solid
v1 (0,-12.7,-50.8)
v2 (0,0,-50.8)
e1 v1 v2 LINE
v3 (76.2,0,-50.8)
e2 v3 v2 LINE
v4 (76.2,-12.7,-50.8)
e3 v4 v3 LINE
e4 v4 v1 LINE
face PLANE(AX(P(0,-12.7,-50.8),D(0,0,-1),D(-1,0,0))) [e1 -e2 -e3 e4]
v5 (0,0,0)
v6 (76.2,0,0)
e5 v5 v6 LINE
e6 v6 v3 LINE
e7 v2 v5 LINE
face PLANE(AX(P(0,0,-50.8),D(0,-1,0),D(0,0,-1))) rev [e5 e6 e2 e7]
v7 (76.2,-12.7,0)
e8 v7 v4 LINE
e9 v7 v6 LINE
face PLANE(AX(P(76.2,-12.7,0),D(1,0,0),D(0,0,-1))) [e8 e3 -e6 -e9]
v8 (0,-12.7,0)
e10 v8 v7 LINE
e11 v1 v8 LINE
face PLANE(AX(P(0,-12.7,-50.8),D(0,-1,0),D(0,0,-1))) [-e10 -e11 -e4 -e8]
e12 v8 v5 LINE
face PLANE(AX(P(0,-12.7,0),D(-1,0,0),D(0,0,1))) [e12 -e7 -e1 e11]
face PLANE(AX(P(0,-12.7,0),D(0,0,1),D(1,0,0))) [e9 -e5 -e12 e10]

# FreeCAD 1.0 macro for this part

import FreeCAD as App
import Part
import Sketcher

V = App.Vector
Q = App.Units.Quantity


def add_polygon(sketch, points):
    """Adds a closed chain of lines whose ends are joined by coincident constraints."""
    first, n = sketch.GeometryCount, len(points)
    for a, b in zip(points, points[1:] + points[:1]):
        sketch.addGeometry(Part.LineSegment(App.Vector(*a, 0), App.Vector(*b, 0)), False)
    for i in range(n):
        sketch.addConstraint(Sketcher.Constraint("Coincident", first + i, 2, first + (i + 1) % n, 1))

doc = App.newDocument("Part")
body = doc.addObject("PartDesign::Body", "Body")

sketch1 = body.newObject("Sketcher::SketchObject", "Sketch")
sketch1.AttachmentSupport = (doc.getObject("XZ_Plane"), [""])
sketch1.MapMode = "FlatFace"
add_polygon(sketch1, [(0, -51), (0, 0), (76, 0), (76, -51)])
sketch1.addConstraint([
    Sketcher.Constraint("Vertical", 0),
    Sketcher.Constraint("Horizontal", 1),
    Sketcher.Constraint("Vertical", 2),
    Sketcher.Constraint("Horizontal", 3),
    Sketcher.Constraint("Coincident", 0, 2, -1, 1),
    Sketcher.Constraint("DistanceX", 1, 1, 1, 2, Q("3 in")),
    Sketcher.Constraint("DistanceY", 0, 1, 0, 2, Q("2 in")),
])
pad1 = body.newObject("PartDesign::Pad", "Pad")
pad1.Profile = sketch1
pad1.Length = Q("0.5 in")

doc.recompute()
